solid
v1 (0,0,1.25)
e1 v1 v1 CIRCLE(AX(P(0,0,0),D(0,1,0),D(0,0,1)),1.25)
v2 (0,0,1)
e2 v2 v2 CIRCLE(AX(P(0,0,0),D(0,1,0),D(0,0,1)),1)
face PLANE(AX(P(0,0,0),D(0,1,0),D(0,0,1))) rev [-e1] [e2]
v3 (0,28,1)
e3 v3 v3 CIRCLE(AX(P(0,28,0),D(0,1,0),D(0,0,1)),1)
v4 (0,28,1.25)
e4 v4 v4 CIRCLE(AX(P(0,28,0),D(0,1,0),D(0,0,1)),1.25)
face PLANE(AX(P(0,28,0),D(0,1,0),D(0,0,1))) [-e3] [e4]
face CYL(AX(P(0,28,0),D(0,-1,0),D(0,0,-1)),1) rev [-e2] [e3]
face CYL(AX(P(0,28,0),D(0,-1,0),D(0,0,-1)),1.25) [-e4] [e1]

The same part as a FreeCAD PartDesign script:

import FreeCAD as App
import Part
import Sketcher
from FreeCAD import Vector
Q = App.Units.Quantity

doc = App.newDocument("Part")
body = doc.addObject("PartDesign::Body", "Body")

# Sketch on XZ plane
sketch1 = doc.addObject("Sketcher::SketchObject", "Sketch")
body.addObject(sketch1)
sketch1.AttachmentSupport = (doc.XZ_Plane, [""])
sketch1.MapMode = "FlatFace"
sketch1.addGeometry([
    Part.Circle(Vector(0, 0, 0), Vector(0, 0, 1), 1.2),
    Part.Circle(Vector(0, 0, 0), Vector(0, 0, 1), 1),
], False)
sketch1.addConstraint([
    Sketcher.Constraint("Coincident", 0, 3, -1, 1),
    Sketcher.Constraint("Coincident", 1, 3, -1, 1),
    Sketcher.Constraint("Diameter", 1, Q("2 mm")),
    Sketcher.Constraint("Diameter", 0, Q("2.5 mm")),
])
pad1 = doc.addObject("PartDesign::Pad", "Pad")
body.addObject(pad1)
pad1.Profile = sketch1
pad1.Length = 28
pad1.Reversed = True

doc.recompute()
